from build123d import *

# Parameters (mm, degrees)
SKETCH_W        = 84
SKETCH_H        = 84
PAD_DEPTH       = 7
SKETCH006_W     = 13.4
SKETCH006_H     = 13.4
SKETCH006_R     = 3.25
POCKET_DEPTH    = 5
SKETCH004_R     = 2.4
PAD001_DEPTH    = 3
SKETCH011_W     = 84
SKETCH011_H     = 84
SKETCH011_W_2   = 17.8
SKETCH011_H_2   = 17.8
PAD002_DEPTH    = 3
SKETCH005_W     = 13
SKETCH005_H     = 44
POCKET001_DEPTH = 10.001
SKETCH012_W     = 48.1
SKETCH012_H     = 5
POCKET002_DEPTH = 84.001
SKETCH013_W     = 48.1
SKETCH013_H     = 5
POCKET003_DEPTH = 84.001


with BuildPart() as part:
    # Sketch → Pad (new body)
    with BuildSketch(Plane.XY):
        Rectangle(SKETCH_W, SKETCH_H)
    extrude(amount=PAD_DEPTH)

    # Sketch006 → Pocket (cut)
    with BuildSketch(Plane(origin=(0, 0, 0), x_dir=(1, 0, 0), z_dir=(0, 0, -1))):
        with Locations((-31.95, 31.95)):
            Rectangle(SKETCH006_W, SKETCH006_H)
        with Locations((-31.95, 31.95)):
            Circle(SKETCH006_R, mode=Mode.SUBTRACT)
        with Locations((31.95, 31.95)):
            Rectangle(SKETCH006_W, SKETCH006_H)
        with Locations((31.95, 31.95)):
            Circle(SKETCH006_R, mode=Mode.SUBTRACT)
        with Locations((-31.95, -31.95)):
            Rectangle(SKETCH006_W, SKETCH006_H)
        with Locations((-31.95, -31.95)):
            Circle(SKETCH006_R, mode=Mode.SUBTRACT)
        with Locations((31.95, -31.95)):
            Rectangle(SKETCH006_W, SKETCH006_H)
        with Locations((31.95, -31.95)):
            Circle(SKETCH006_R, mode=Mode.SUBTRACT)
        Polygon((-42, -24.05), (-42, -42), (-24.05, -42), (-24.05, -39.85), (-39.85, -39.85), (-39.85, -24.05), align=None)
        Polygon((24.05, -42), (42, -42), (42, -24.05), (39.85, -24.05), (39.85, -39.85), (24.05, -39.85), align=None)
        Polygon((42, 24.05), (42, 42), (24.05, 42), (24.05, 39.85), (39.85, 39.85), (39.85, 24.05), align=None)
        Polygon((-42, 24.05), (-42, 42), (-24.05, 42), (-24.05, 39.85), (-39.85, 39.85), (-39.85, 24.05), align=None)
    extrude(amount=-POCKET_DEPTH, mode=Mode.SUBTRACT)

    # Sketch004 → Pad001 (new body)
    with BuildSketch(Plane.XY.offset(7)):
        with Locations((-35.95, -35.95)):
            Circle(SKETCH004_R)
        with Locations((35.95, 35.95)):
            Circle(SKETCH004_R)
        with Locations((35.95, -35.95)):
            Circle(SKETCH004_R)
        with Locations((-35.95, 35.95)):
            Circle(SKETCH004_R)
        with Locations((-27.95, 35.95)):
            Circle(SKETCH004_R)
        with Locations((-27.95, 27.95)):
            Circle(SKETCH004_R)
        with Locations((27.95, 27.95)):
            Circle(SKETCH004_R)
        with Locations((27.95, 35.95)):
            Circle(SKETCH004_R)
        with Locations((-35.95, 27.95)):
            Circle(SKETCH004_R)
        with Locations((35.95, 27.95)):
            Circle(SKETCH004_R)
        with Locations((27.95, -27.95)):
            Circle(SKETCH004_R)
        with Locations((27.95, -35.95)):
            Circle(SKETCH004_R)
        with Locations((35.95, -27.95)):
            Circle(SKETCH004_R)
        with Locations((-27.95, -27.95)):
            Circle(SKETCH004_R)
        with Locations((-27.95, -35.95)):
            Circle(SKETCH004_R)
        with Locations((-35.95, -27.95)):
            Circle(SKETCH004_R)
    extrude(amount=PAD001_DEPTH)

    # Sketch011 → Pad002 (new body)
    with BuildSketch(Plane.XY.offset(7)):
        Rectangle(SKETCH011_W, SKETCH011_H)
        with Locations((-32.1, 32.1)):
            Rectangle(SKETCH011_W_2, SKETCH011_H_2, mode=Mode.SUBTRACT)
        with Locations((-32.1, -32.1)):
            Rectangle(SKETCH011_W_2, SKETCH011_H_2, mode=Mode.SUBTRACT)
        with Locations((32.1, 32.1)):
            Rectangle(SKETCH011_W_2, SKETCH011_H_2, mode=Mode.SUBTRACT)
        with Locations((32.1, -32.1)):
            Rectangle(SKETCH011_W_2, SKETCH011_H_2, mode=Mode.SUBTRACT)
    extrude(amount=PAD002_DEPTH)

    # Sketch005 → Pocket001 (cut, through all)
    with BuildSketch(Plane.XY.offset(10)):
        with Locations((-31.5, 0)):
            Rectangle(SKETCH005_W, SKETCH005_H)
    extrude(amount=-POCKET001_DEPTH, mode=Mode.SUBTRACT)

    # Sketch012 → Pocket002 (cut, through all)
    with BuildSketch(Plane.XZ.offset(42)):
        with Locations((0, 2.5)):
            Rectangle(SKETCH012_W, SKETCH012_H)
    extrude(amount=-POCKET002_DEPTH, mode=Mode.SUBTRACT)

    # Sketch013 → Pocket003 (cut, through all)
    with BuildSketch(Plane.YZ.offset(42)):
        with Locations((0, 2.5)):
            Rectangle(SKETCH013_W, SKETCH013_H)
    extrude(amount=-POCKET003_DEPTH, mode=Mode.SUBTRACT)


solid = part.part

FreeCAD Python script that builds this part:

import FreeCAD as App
import Part
import Sketcher

V = App.Vector
Q = App.Units.Quantity

doc = App.newDocument("Part")
params = doc.addObject("Spreadsheet::Sheet", "Params")
for row, (alias, value) in enumerate([
    ("sketch1_width", "84 mm"),
    ("pad1_length", "7 mm"),
    ("sketch2_diameter", "6.5 mm"),
    ("sketch2_width", "13.4 mm"),
    ("sketch2_width2", "15.8 mm"),
    ("sketch2_width3", "17.95 mm"),
    ("pocket1_length", "5 mm"),
    ("sketch3_diameter", "4.8 mm"),
    ("pad2_length", "3 mm"),
    ("sketch4_width", "84 mm"),
    ("sketch4_width2", "17.8 mm"),
    ("pad3_length", "3 mm"),
    ("sketch5_width", "13 mm"),
    ("sketch5_height", "44 mm"),
    ("sketch6_height", "5 mm"),
    ("sketch6_width", "48.1 mm"),
    ("sketch7_height", "5 mm"),
    ("sketch7_width", "48.1 mm"),
], start=1):
    params.set(f"A{row}", alias)
    params.set(f"B{row}", "=" + value)
    params.setAlias(f"B{row}", alias)

body = doc.addObject("PartDesign::Body", "Body")

# Sketch on XY plane
sketch1 = body.newObject("Sketcher::SketchObject", "Sketch")
sketch1.AttachmentSupport = (doc.getObject("XY_Plane"), [""])
sketch1.MapMode = "FlatFace"
sketch1.addGeometry(Part.LineSegment(V(-42, 42, 0), V(-42, -42, 0)), False)
sketch1.addGeometry(Part.LineSegment(V(-42, -42, 0), V(42, -42, 0)), False)
sketch1.addGeometry(Part.LineSegment(V(42, -42, 0), V(42, 42, 0)), False)
sketch1.addGeometry(Part.LineSegment(V(42, 42, 0), V(-42, 42, 0)), False)
sketch1.addConstraint(Sketcher.Constraint("Coincident", 0, 2, 1, 1))
sketch1.addConstraint(Sketcher.Constraint("Coincident", 1, 2, 2, 1))
sketch1.addConstraint(Sketcher.Constraint("Coincident", 2, 2, 3, 1))
sketch1.addConstraint(Sketcher.Constraint("Coincident", 3, 2, 0, 1))
sketch1.addConstraint(Sketcher.Constraint("Vertical", 0))
sketch1.addConstraint(Sketcher.Constraint("Horizontal", 1))
sketch1.addConstraint(Sketcher.Constraint("Vertical", 2))
sketch1.addConstraint(Sketcher.Constraint("Horizontal", 3))
sketch1.addConstraint(Sketcher.Constraint("Symmetric", 0, 2, 2, 2, -1, 1))
sketch1.addConstraint(Sketcher.Constraint("Equal", 3, 0))
sketch1.addConstraint(Sketcher.Constraint("DistanceX", 1, 1, 1, 2, Q("84 mm")))
sketch1.setExpression("Constraints[10]", "Params.sketch1_width")
pad1 = body.newObject("PartDesign::Pad", "Pad")
pad1.Profile = sketch1
pad1.setExpression("Length", "Params.pad1_length")

# Sketch on XY plane
sketch2 = body.newObject("Sketcher::SketchObject", "Sketch001")
sketch2.AttachmentSupport = (doc.getObject("XY_Plane"), [""])
sketch2.MapMode = "FlatFace"
sketch2.addGeometry(Part.LineSegment(V(-38.6, -38.6, 0), V(-38.6, -25.2, 0)), False)
sketch2.addGeometry(Part.LineSegment(V(-38.6, -25.2, 0), V(-25.2, -25.2, 0)), False)
sketch2.addGeometry(Part.LineSegment(V(-25.2, -25.2, 0), V(-25.2, -38.6, 0)), False)
sketch2.addGeometry(Part.LineSegment(V(-25.2, -38.6, 0), V(-38.6, -38.6, 0)), False)
sketch2.addGeometry(Part.Circle(V(-31.9, -31.9, 0), V(0, 0, 1), 3.2), False)
sketch2.addGeometry(Part.LineSegment(V(25.2, -38.6, 0), V(25.2, -25.2, 0)), False)
sketch2.addGeometry(Part.LineSegment(V(25.2, -25.2, 0), V(38.6, -25.2, 0)), False)
sketch2.addGeometry(Part.LineSegment(V(38.6, -25.2, 0), V(38.6, -38.6, 0)), False)
sketch2.addGeometry(Part.LineSegment(V(38.6, -38.6, 0), V(25.2, -38.6, 0)), False)
sketch2.addGeometry(Part.Circle(V(31.9, -31.9, 0), V(0, 0, 1), 3.2), False)
sketch2.addGeometry(Part.LineSegment(V(-38.6, 25.2, 0), V(-38.6, 38.6, 0)), False)
sketch2.addGeometry(Part.LineSegment(V(-38.6, 38.6, 0), V(-25.2, 38.6, 0)), False)
sketch2.addGeometry(Part.LineSegment(V(-25.2, 38.6, 0), V(-25.2, 25.2, 0)), False)
sketch2.addGeometry(Part.LineSegment(V(-25.2, 25.2, 0), V(-38.6, 25.2, 0)), False)
sketch2.addGeometry(Part.Circle(V(-31.9, 31.9, 0), V(0, 0, 1), 3.2), False)
sketch2.addGeometry(Part.LineSegment(V(25.2, 25.2, 0), V(25.2, 38.6, 0)), False)
sketch2.addGeometry(Part.LineSegment(V(25.2, 38.6, 0), V(38.6, 38.6, 0)), False)
sketch2.addGeometry(Part.LineSegment(V(38.6, 38.6, 0), V(38.6, 25.2, 0)), False)
sketch2.addGeometry(Part.LineSegment(V(38.6, 25.2, 0), V(25.2, 25.2, 0)), False)
sketch2.addGeometry(Part.Circle(V(31.9, 31.9, 0), V(0, 0, 1), 3.2), False)
sketch2.addGeometry(Part.LineSegment(V(-42, 24.1, 0), V(-42, 42, 0)), False)
sketch2.addGeometry(Part.LineSegment(V(-42, 42, 0), V(-24.1, 42, 0)), False)
sketch2.addGeometry(Part.LineSegment(V(-24.1, 42, 0), V(-24.1, 39.9, 0)), False)
sketch2.addGeometry(Part.LineSegment(V(-24.1, 39.9, 0), V(-39.9, 39.9, 0)), False)
sketch2.addGeometry(Part.LineSegment(V(-39.9, 39.9, 0), V(-39.9, 24.1, 0)), False)
sketch2.addGeometry(Part.LineSegment(V(-39.9, 24.1, 0), V(-42, 24.1, 0)), False)
sketch2.addGeometry(Part.LineSegment(V(24.1, 42, 0), V(42, 42, 0)), False)
sketch2.addGeometry(Part.LineSegment(V(42, 42, 0), V(42, 24.1, 0)), False)
sketch2.addGeometry(Part.LineSegment(V(42, 24.1, 0), V(39.9, 24.1, 0)), False)
sketch2.addGeometry(Part.LineSegment(V(39.9, 24.1, 0), V(39.9, 39.9, 0)), False)
sketch2.addGeometry(Part.LineSegment(V(39.9, 39.9, 0), V(24.1, 39.9, 0)), False)
sketch2.addGeometry(Part.LineSegment(V(24.1, 39.9, 0), V(24.1, 42, 0)), False)
sketch2.addGeometry(Part.LineSegment(V(42, -24.1, 0), V(42, -42, 0)), False)
sketch2.addGeometry(Part.LineSegment(V(42, -42, 0), V(24.1, -42, 0)), False)
sketch2.addGeometry(Part.LineSegment(V(24.1, -42, 0), V(24.1, -39.9, 0)), False)
sketch2.addGeometry(Part.LineSegment(V(24.1, -39.9, 0), V(39.9, -39.9, 0)), False)
sketch2.addGeometry(Part.LineSegment(V(39.9, -39.9, 0), V(39.9, -24.1, 0)), False)
sketch2.addGeometry(Part.LineSegment(V(39.9, -24.1, 0), V(42, -24.1, 0)), False)
sketch2.addGeometry(Part.LineSegment(V(-42, -42, 0), V(-42, -24.1, 0)), False)
sketch2.addGeometry(Part.LineSegment(V(-42, -24.1, 0), V(-39.9, -24.1, 0)), False)
sketch2.addGeometry(Part.LineSegment(V(-39.9, -24.1, 0), V(-39.9, -39.9, 0)), False)
sketch2.addGeometry(Part.LineSegment(V(-39.9, -39.9, 0), V(-24.1, -39.9, 0)), False)
sketch2.addGeometry(Part.LineSegment(V(-24.1, -39.9, 0), V(-24.1, -42, 0)), False)
sketch2.addGeometry(Part.LineSegment(V(-24.1, -42, 0), V(-42, -42, 0)), False)
sketch2.addConstraint(Sketcher.Constraint("Coincident", 0, 2, 1, 1))
sketch2.addConstraint(Sketcher.Constraint("Coincident", 1, 2, 2, 1))
sketch2.addConstraint(Sketcher.Constraint("Coincident", 2, 2, 3, 1))
sketch2.addConstraint(Sketcher.Constraint("Coincident", 3, 2, 0, 1))
sketch2.addConstraint(Sketcher.Constraint("Coincident", 5, 2, 6, 1))
sketch2.addConstraint(Sketcher.Constraint("Coincident", 6, 2, 7, 1))
sketch2.addConstraint(Sketcher.Constraint("Coincident", 7, 2, 8, 1))
sketch2.addConstraint(Sketcher.Constraint("Coincident", 8, 2, 5, 1))
sketch2.addConstraint(Sketcher.Constraint("Coincident", 10, 2, 11, 1))
sketch2.addConstraint(Sketcher.Constraint("Coincident", 11, 2, 12, 1))
sketch2.addConstraint(Sketcher.Constraint("Coincident", 12, 2, 13, 1))
sketch2.addConstraint(Sketcher.Constraint("Coincident", 13, 2, 10, 1))
sketch2.addConstraint(Sketcher.Constraint("Coincident", 15, 2, 16, 1))
sketch2.addConstraint(Sketcher.Constraint("Coincident", 16, 2, 17, 1))
sketch2.addConstraint(Sketcher.Constraint("Coincident", 17, 2, 18, 1))
sketch2.addConstraint(Sketcher.Constraint("Coincident", 18, 2, 15, 1))
sketch2.addConstraint(Sketcher.Constraint("Coincident", 20, 2, 21, 1))
sketch2.addConstraint(Sketcher.Constraint("Coincident", 21, 2, 22, 1))
sketch2.addConstraint(Sketcher.Constraint("Coincident", 22, 2, 23, 1))
sketch2.addConstraint(Sketcher.Constraint("Coincident", 23, 2, 24, 1))
sketch2.addConstraint(Sketcher.Constraint("Coincident", 24, 2, 25, 1))
sketch2.addConstraint(Sketcher.Constraint("Coincident", 25, 2, 20, 1))
sketch2.addConstraint(Sketcher.Constraint("Coincident", 26, 2, 27, 1))
sketch2.addConstraint(Sketcher.Constraint("Coincident", 27, 2, 28, 1))
sketch2.addConstraint(Sketcher.Constraint("Coincident", 28, 2, 29, 1))
sketch2.addConstraint(Sketcher.Constraint("Coincident", 29, 2, 30, 1))
sketch2.addConstraint(Sketcher.Constraint("Coincident", 30, 2, 31, 1))
sketch2.addConstraint(Sketcher.Constraint("Coincident", 31, 2, 26, 1))
sketch2.addConstraint(Sketcher.Constraint("Coincident", 32, 2, 33, 1))
sketch2.addConstraint(Sketcher.Constraint("Coincident", 33, 2, 34, 1))
sketch2.addConstraint(Sketcher.Constraint("Coincident", 34, 2, 35, 1))
sketch2.addConstraint(Sketcher.Constraint("Coincident", 35, 2, 36, 1))
sketch2.addConstraint(Sketcher.Constraint("Coincident", 36, 2, 37, 1))
sketch2.addConstraint(Sketcher.Constraint("Coincident", 37, 2, 32, 1))
sketch2.addConstraint(Sketcher.Constraint("Coincident", 38, 2, 39, 1))
sketch2.addConstraint(Sketcher.Constraint("Coincident", 39, 2, 40, 1))
sketch2.addConstraint(Sketcher.Constraint("Coincident", 40, 2, 41, 1))
sketch2.addConstraint(Sketcher.Constraint("Coincident", 41, 2, 42, 1))
sketch2.addConstraint(Sketcher.Constraint("Coincident", 42, 2, 43, 1))
sketch2.addConstraint(Sketcher.Constraint("Coincident", 43, 2, 38, 1))
sketch2.addConstraint(Sketcher.Constraint("Vertical", 0))
sketch2.addConstraint(Sketcher.Constraint("Horizontal", 1))
sketch2.addConstraint(Sketcher.Constraint("Vertical", 2))
sketch2.addConstraint(Sketcher.Constraint("Horizontal", 3))
sketch2.addConstraint(Sketcher.Constraint("Vertical", 5))
sketch2.addConstraint(Sketcher.Constraint("Horizontal", 6))
sketch2.addConstraint(Sketcher.Constraint("Vertical", 7))
sketch2.addConstraint(Sketcher.Constraint("Horizontal", 8))
sketch2.addConstraint(Sketcher.Constraint("Vertical", 10))
sketch2.addConstraint(Sketcher.Constraint("Horizontal", 11))
sketch2.addConstraint(Sketcher.Constraint("Vertical", 12))
sketch2.addConstraint(Sketcher.Constraint("Horizontal", 13))
sketch2.addConstraint(Sketcher.Constraint("Vertical", 15))
sketch2.addConstraint(Sketcher.Constraint("Horizontal", 16))
sketch2.addConstraint(Sketcher.Constraint("Vertical", 17))
sketch2.addConstraint(Sketcher.Constraint("Horizontal", 18))
sketch2.addConstraint(Sketcher.Constraint("Vertical", 20))
sketch2.addConstraint(Sketcher.Constraint("Horizontal", 21))
sketch2.addConstraint(Sketcher.Constraint("Vertical", 22))
sketch2.addConstraint(Sketcher.Constraint("Horizontal", 23))
sketch2.addConstraint(Sketcher.Constraint("Vertical", 24))
sketch2.addConstraint(Sketcher.Constraint("Horizontal", 25))
sketch2.addConstraint(Sketcher.Constraint("Horizontal", 26))
sketch2.addConstraint(Sketcher.Constraint("Vertical", 27))
sketch2.addConstraint(Sketcher.Constraint("Horizontal", 28))
sketch2.addConstraint(Sketcher.Constraint("Vertical", 29))
sketch2.addConstraint(Sketcher.Constraint("Horizontal", 30))
sketch2.addConstraint(Sketcher.Constraint("Vertical", 31))
sketch2.addConstraint(Sketcher.Constraint("Vertical", 32))
sketch2.addConstraint(Sketcher.Constraint("Horizontal", 33))
sketch2.addConstraint(Sketcher.Constraint("Vertical", 34))
sketch2.addConstraint(Sketcher.Constraint("Horizontal", 35))
sketch2.addConstraint(Sketcher.Constraint("Vertical", 36))
sketch2.addConstraint(Sketcher.Constraint("Horizontal", 37))
sketch2.addConstraint(Sketcher.Constraint("Vertical", 38))
sketch2.addConstraint(Sketcher.Constraint("Horizontal", 39))
sketch2.addConstraint(Sketcher.Constraint("Vertical", 40))
sketch2.addConstraint(Sketcher.Constraint("Horizontal", 41))
sketch2.addConstraint(Sketcher.Constraint("Vertical", 42))
sketch2.addConstraint(Sketcher.Constraint("Horizontal", 43))
sketch2.addConstraint(Sketcher.Constraint("Equal", 4, 9))
sketch2.addConstraint(Sketcher.Constraint("Equal", 9, 14))
sketch2.addConstraint(Sketcher.Constraint("Equal", 14, 19))
sketch2.addConstraint(Sketcher.Constraint("Symmetric", 9, 3, 14, 3, -1, 1))
sketch2.addConstraint(Sketcher.Constraint("Symmetric", 4, 3, 19, 3, -1, 1))
sketch2.addConstraint(Sketcher.Constraint("Symmetric", 7, 2, 10, 2, -1, 1))
sketch2.addConstraint(Sketcher.Constraint("Symmetric", 5, 2, 12, 2, -1, 1))
sketch2.addConstraint(Sketcher.Constraint("Symmetric", 2, 2, 15, 2, -1, 1))
sketch2.addConstraint(Sketcher.Constraint("Symmetric", 0, 2, 17, 2, -1, 1))
sketch2.addConstraint(Sketcher.Constraint("Symmetric", 20, 2, 32, 2, -1, 1))
sketch2.addConstraint(Sketcher.Constraint("Symmetric", 22, 2, 34, 2, -1, 1))
sketch2.addConstraint(Sketcher.Constraint("Symmetric", 24, 2, 36, 2, -1, 1))
sketch2.addConstraint(Sketcher.Constraint("Symmetric", 27, 2, 38, 2, -1, 1))
sketch2.addConstraint(Sketcher.Constraint("Symmetric", 29, 2, 40, 2, -1, 1))
sketch2.addConstraint(Sketcher.Constraint("Symmetric", 31, 2, 42, 2, -1, 1))
sketch2.addConstraint(Sketcher.Constraint("Symmetric", 4, 3, 9, 3, -2))
sketch2.addConstraint(Sketcher.Constraint("Symmetric", 1, 2, 5, 2, -2))
sketch2.addConstraint(Sketcher.Constraint("Symmetric", 3, 2, 7, 2, -2))
sketch2.addConstraint(Sketcher.Constraint("Symmetric", 20, 2, 26, 2, -2))
sketch2.addConstraint(Sketcher.Constraint("Symmetric", 24, 2, 28, 2, -2))
sketch2.addConstraint(Sketcher.Constraint("Symmetric", 22, 2, 30, 2, -2))
sketch2.addConstraint(Sketcher.Constraint("Equal", 18, 0))
sketch2.addConstraint(Sketcher.Constraint("Equal", 43, 20))
sketch2.addConstraint(Sketcher.Constraint("Equal", 39, 22))
sketch2.addConstraint(Sketcher.Constraint("Diameter", 4, Q("6.5 mm")))
sketch2.addConstraint(Sketcher.Constraint("DistanceX", 1, 1, 1, 2, Q("13.4 mm")))
sketch2.addConstraint(Sketcher.Constraint("DistanceX", 23, 2, 23, 1, Q("15.8 mm")))
sketch2.addConstraint(Sketcher.Constraint("DistanceX", 20, 2, -1, 1, Q("42 mm")))
sketch2.addConstraint(Sketcher.Constraint("DistanceY", -1, 1, 20, 2, Q("42 mm")))
sketch2.addConstraint(Sketcher.Constraint("DistanceX", 21, 1, 21, 2, Q("17.95 mm")))
sketch2.addConstraint(Sketcher.Constraint("DistanceX", 4, 3, 9, 3, Q("63.9 mm")))
sketch2.addConstraint(Sketcher.Constraint("DistanceY", 4, 3, 14, 3, Q("63.9 mm")))
sketch2.addConstraint(Sketcher.Constraint("DistanceX", 0, 2, 4, 3, Q("6.7 mm")))
sketch2.addConstraint(Sketcher.Constraint("DistanceY", 4, 3, 0, 2, Q("6.7 mm")))
sketch2.setExpression("Constraints[104]", "Params.sketch2_diameter")
sketch2.setExpression("Constraints[105]", "Params.sketch2_width")
sketch2.setExpression("Constraints[106]", "Params.sketch2_width2")
sketch2.setExpression("Constraints[109]", "Params.sketch2_width3")
pocket1 = body.newObject("PartDesign::Pocket", "Pocket")
pocket1.Profile = sketch2
pocket1.setExpression("Length", "Params.pocket1_length")
pocket1.Reversed = True

# Sketch on XY plane
sketch3 = body.newObject("Sketcher::SketchObject", "Sketch002")
sketch3.AttachmentSupport = (doc.getObject("XY_Plane"), [""])
sketch3.MapMode = "FlatFace"
sketch3.AttachmentOffset = App.Placement(V(0, 0, 7), App.Rotation())
sketch3.addGeometry(Part.Circle(V(-36, -36, 0), V(0, 0, 1), 2.4), False)
sketch3.addGeometry(Part.Circle(V(36, 36, 0), V(0, 0, 1), 2.4), False)
sketch3.addGeometry(Part.Circle(V(36, -36, 0), V(0, 0, 1), 2.4), False)
sketch3.addGeometry(Part.Circle(V(-36, 36, 0), V(0, 0, 1), 2.4), False)
sketch3.addGeometry(Part.Circle(V(-27.9, 36, 0), V(0, 0, 1), 2.4), False)
sketch3.addGeometry(Part.Circle(V(-27.9, 27.9, 0), V(0, 0, 1), 2.4), False)
sketch3.addGeometry(Part.Circle(V(27.9, 27.9, 0), V(0, 0, 1), 2.4), False)
sketch3.addGeometry(Part.Circle(V(27.9, 36, 0), V(0, 0, 1), 2.4), False)
sketch3.addGeometry(Part.Circle(V(-36, 27.9, 0), V(0, 0, 1), 2.4), False)
sketch3.addGeometry(Part.Circle(V(36, 27.9, 0), V(0, 0, 1), 2.4), False)
sketch3.addGeometry(Part.Circle(V(27.9, -27.9, 0), V(0, 0, 1), 2.4), False)
sketch3.addGeometry(Part.Circle(V(27.9, -36, 0), V(0, 0, 1), 2.4), False)
sketch3.addGeometry(Part.Circle(V(36, -27.9, 0), V(0, 0, 1), 2.4), False)
sketch3.addGeometry(Part.Circle(V(-27.9, -27.9, 0), V(0, 0, 1), 2.4), False)
sketch3.addGeometry(Part.Circle(V(-27.9, -36, 0), V(0, 0, 1), 2.4), False)
sketch3.addGeometry(Part.Circle(V(-36, -27.9, 0), V(0, 0, 1), 2.4), False)
sketch3.addConstraint(Sketcher.Constraint("Equal", 0, 1))
sketch3.addConstraint(Sketcher.Constraint("Equal", 1, 2))
sketch3.addConstraint(Sketcher.Constraint("Equal", 2, 3))
sketch3.addConstraint(Sketcher.Constraint("Equal", 3, 4))
sketch3.addConstraint(Sketcher.Constraint("Equal", 4, 5))
sketch3.addConstraint(Sketcher.Constraint("Equal", 5, 6))
sketch3.addConstraint(Sketcher.Constraint("Equal", 6, 7))
sketch3.addConstraint(Sketcher.Constraint("Equal", 7, 8))
sketch3.addConstraint(Sketcher.Constraint("Equal", 8, 9))
sketch3.addConstraint(Sketcher.Constraint("Equal", 9, 10))
sketch3.addConstraint(Sketcher.Constraint("Equal", 10, 11))
sketch3.addConstraint(Sketcher.Constraint("Equal", 11, 12))
sketch3.addConstraint(Sketcher.Constraint("Equal", 12, 13))
sketch3.addConstraint(Sketcher.Constraint("Equal", 13, 14))
sketch3.addConstraint(Sketcher.Constraint("Equal", 14, 15))
sketch3.addConstraint(Sketcher.Constraint("Symmetric", 0, 3, 1, 3, -1, 1))
sketch3.addConstraint(Sketcher.Constraint("Symmetric", 2, 3, 3, 3, -1, 1))
sketch3.addConstraint(Sketcher.Constraint("Symmetric", 5, 3, 10, 3, -1, 1))
sketch3.addConstraint(Sketcher.Constraint("Symmetric", 4, 3, 11, 3, -1, 1))
sketch3.addConstraint(Sketcher.Constraint("Symmetric", 8, 3, 12, 3, -1, 1))
sketch3.addConstraint(Sketcher.Constraint("Symmetric", 6, 3, 13, 3, -1, 1))
sketch3.addConstraint(Sketcher.Constraint("Symmetric", 7, 3, 14, 3, -1, 1))
sketch3.addConstraint(Sketcher.Constraint("Symmetric", 9, 3, 15, 3, -1, 1))
sketch3.addConstraint(Sketcher.Constraint("Symmetric", 0, 3, 2, 3, -2))
sketch3.addConstraint(Sketcher.Constraint("Symmetric", 5, 3, 6, 3, -2))
sketch3.addConstraint(Sketcher.Constraint("Symmetric", 4, 3, 7, 3, -2))
sketch3.addConstraint(Sketcher.Constraint("Symmetric", 8, 3, 9, 3, -2))
sketch3.addConstraint(Sketcher.Constraint("Horizontal", 3, 3, 4, 3))
sketch3.addConstraint(Sketcher.Constraint("Horizontal", 6, 3, 8, 3))
sketch3.addConstraint(Sketcher.Constraint("Vertical", 4, 3, 5, 3))
sketch3.addConstraint(Sketcher.Constraint("Vertical", 3, 3, 8, 3))
sketch3.addConstraint(Sketcher.Constraint("Diameter", 0, Q("4.8 mm")))
sketch3.addConstraint(Sketcher.Constraint("DistanceX", 3, 3, 4, 3, Q("8 mm")))
sketch3.addConstraint(Sketcher.Constraint("DistanceY", 5, 3, 4, 3, Q("8 mm")))
sketch3.addConstraint(Sketcher.Constraint("DistanceX", 0, 3, 1, 3, Q("71.9 mm")))
sketch3.addConstraint(Sketcher.Constraint("DistanceY", 0, 3, 1, 3, Q("71.9 mm")))
sketch3.setExpression("Constraints[31]", "Params.sketch3_diameter")
pad2 = body.newObject("PartDesign::Pad", "Pad001")
pad2.Profile = sketch3
pad2.setExpression("Length", "Params.pad2_length")

# Sketch on XY plane
sketch4 = body.newObject("Sketcher::SketchObject", "Sketch003")
sketch4.AttachmentSupport = (doc.getObject("XY_Plane"), [""])
sketch4.MapMode = "FlatFace"
sketch4.AttachmentOffset = App.Placement(V(0, 0, 7), App.Rotation())
sketch4.addGeometry(Part.LineSegment(V(-42, 42, 0), V(-42, -42, 0)), False)
sketch4.addGeometry(Part.LineSegment(V(-42, -42, 0), V(42, -42, 0)), False)
sketch4.addGeometry(Part.LineSegment(V(42, -42, 0), V(42, 42, 0)), False)
sketch4.addGeometry(Part.LineSegment(V(42, 42, 0), V(-42, 42, 0)), False)
sketch4.addGeometry(Part.LineSegment(V(-23, -41, 0), V(-41, -41, 0)), False)
sketch4.addGeometry(Part.LineSegment(V(-41, -41, 0), V(-41, -23, 0)), False)
sketch4.addGeometry(Part.LineSegment(V(-41, -23, 0), V(-23, -23, 0)), False)
sketch4.addGeometry(Part.LineSegment(V(-23, -23, 0), V(-23, -41, 0)), False)
sketch4.addGeometry(Part.LineSegment(V(41, -41, 0), V(23, -41, 0)), False)
sketch4.addGeometry(Part.LineSegment(V(23, -41, 0), V(23, -23, 0)), False)
sketch4.addGeometry(Part.LineSegment(V(23, -23, 0), V(41, -23, 0)), False)
sketch4.addGeometry(Part.LineSegment(V(41, -23, 0), V(41, -41, 0)), False)
sketch4.addGeometry(Part.LineSegment(V(-23, 23, 0), V(-41, 23, 0)), False)
sketch4.addGeometry(Part.LineSegment(V(-41, 23, 0), V(-41, 41, 0)), False)
sketch4.addGeometry(Part.LineSegment(V(-41, 41, 0), V(-23, 41, 0)), False)
sketch4.addGeometry(Part.LineSegment(V(-23, 41, 0), V(-23, 23, 0)), False)
sketch4.addGeometry(Part.LineSegment(V(41, 23, 0), V(23, 23, 0)), False)
sketch4.addGeometry(Part.LineSegment(V(23, 23, 0), V(23, 41, 0)), False)
sketch4.addGeometry(Part.LineSegment(V(23, 41, 0), V(41, 41, 0)), False)
sketch4.addGeometry(Part.LineSegment(V(41, 41, 0), V(41, 23, 0)), False)
sketch4.addConstraint(Sketcher.Constraint("Coincident", 0, 2, 1, 1))
sketch4.addConstraint(Sketcher.Constraint("Coincident", 1, 2, 2, 1))
sketch4.addConstraint(Sketcher.Constraint("Coincident", 2, 2, 3, 1))
sketch4.addConstraint(Sketcher.Constraint("Coincident", 3, 2, 0, 1))
sketch4.addConstraint(Sketcher.Constraint("Coincident", 4, 2, 5, 1))
sketch4.addConstraint(Sketcher.Constraint("Coincident", 5, 2, 6, 1))
sketch4.addConstraint(Sketcher.Constraint("Coincident", 6, 2, 7, 1))
sketch4.addConstraint(Sketcher.Constraint("Coincident", 7, 2, 4, 1))
sketch4.addConstraint(Sketcher.Constraint("Coincident", 8, 2, 9, 1))
sketch4.addConstraint(Sketcher.Constraint("Coincident", 9, 2, 10, 1))
sketch4.addConstraint(Sketcher.Constraint("Coincident", 10, 2, 11, 1))
sketch4.addConstraint(Sketcher.Constraint("Coincident", 11, 2, 8, 1))
sketch4.addConstraint(Sketcher.Constraint("Coincident", 12, 2, 13, 1))
sketch4.addConstraint(Sketcher.Constraint("Coincident", 13, 2, 14, 1))
sketch4.addConstraint(Sketcher.Constraint("Coincident", 14, 2, 15, 1))
sketch4.addConstraint(Sketcher.Constraint("Coincident", 15, 2, 12, 1))
sketch4.addConstraint(Sketcher.Constraint("Coincident", 16, 2, 17, 1))
sketch4.addConstraint(Sketcher.Constraint("Coincident", 17, 2, 18, 1))
sketch4.addConstraint(Sketcher.Constraint("Coincident", 18, 2, 19, 1))
sketch4.addConstraint(Sketcher.Constraint("Coincident", 19, 2, 16, 1))
sketch4.addConstraint(Sketcher.Constraint("Vertical", 0))
sketch4.addConstraint(Sketcher.Constraint("Horizontal", 1))
sketch4.addConstraint(Sketcher.Constraint("Vertical", 2))
sketch4.addConstraint(Sketcher.Constraint("Horizontal", 3))
sketch4.addConstraint(Sketcher.Constraint("Horizontal", 4))
sketch4.addConstraint(Sketcher.Constraint("Vertical", 5))
sketch4.addConstraint(Sketcher.Constraint("Horizontal", 6))
sketch4.addConstraint(Sketcher.Constraint("Vertical", 7))
sketch4.addConstraint(Sketcher.Constraint("Horizontal", 8))
sketch4.addConstraint(Sketcher.Constraint("Vertical", 9))
sketch4.addConstraint(Sketcher.Constraint("Horizontal", 10))
sketch4.addConstraint(Sketcher.Constraint("Vertical", 11))
sketch4.addConstraint(Sketcher.Constraint("Horizontal", 12))
sketch4.addConstraint(Sketcher.Constraint("Vertical", 13))
sketch4.addConstraint(Sketcher.Constraint("Horizontal", 14))
sketch4.addConstraint(Sketcher.Constraint("Vertical", 15))
sketch4.addConstraint(Sketcher.Constraint("Horizontal", 16))
sketch4.addConstraint(Sketcher.Constraint("Vertical", 17))
sketch4.addConstraint(Sketcher.Constraint("Horizontal", 18))
sketch4.addConstraint(Sketcher.Constraint("Vertical", 19))
sketch4.addConstraint(Sketcher.Constraint("Symmetric", 0, 2, 2, 2, -1, 1))
sketch4.addConstraint(Sketcher.Constraint("Symmetric", 10, 2, 12, 2, -1, 1))
sketch4.addConstraint(Sketcher.Constraint("Symmetric", 8, 2, 14, 2, -1, 1))
sketch4.addConstraint(Sketcher.Constraint("Symmetric", 6, 2, 16, 2, -1, 1))
sketch4.addConstraint(Sketcher.Constraint("Symmetric", 4, 2, 18, 2, -1, 1))
sketch4.addConstraint(Sketcher.Constraint("Symmetric", 7, 2, 8, 2, -2))
sketch4.addConstraint(Sketcher.Constraint("Symmetric", 5, 2, 10, 2, -2))
sketch4.addConstraint(Sketcher.Constraint("Equal", 3, 0))
sketch4.addConstraint(Sketcher.Constraint("Equal", 18, 5))
sketch4.addConstraint(Sketcher.Constraint("DistanceX", 1, 1, 1, 2, Q("84 mm")))
sketch4.addConstraint(Sketcher.Constraint("DistanceX", 4, 2, 4, 1, Q("17.8 mm")))
sketch4.addConstraint(Sketcher.Constraint("DistanceX", 4, 2, -1, 1, Q("41 mm")))
sketch4.addConstraint(Sketcher.Constraint("DistanceY", 4, 2, -1, 1, Q("41 mm")))
sketch4.setExpression("Constraints[49]", "Params.sketch4_width")
sketch4.setExpression("Constraints[50]", "Params.sketch4_width2")
pad3 = body.newObject("PartDesign::Pad", "Pad002")
pad3.Profile = sketch4
pad3.setExpression("Length", "Params.pad3_length")

# Sketch on XY plane
sketch5 = body.newObject("Sketcher::SketchObject", "Sketch004")
sketch5.AttachmentSupport = (doc.getObject("XY_Plane"), [""])
sketch5.MapMode = "FlatFace"
sketch5.AttachmentOffset = App.Placement(V(0, 0, 10), App.Rotation())
sketch5.addGeometry(Part.LineSegment(V(-38, 22, 0), V(-38, -22, 0)), False)
sketch5.addGeometry(Part.LineSegment(V(-38, -22, 0), V(-25, -22, 0)), False)
sketch5.addGeometry(Part.LineSegment(V(-25, -22, 0), V(-25, 22, 0)), False)
sketch5.addGeometry(Part.LineSegment(V(-25, 22, 0), V(-38, 22, 0)), False)
sketch5.addConstraint(Sketcher.Constraint("Coincident", 0, 2, 1, 1))
sketch5.addConstraint(Sketcher.Constraint("Coincident", 1, 2, 2, 1))
sketch5.addConstraint(Sketcher.Constraint("Coincident", 2, 2, 3, 1))
sketch5.addConstraint(Sketcher.Constraint("Coincident", 3, 2, 0, 1))
sketch5.addConstraint(Sketcher.Constraint("Vertical", 0))
sketch5.addConstraint(Sketcher.Constraint("Horizontal", 1))
sketch5.addConstraint(Sketcher.Constraint("Vertical", 2))
sketch5.addConstraint(Sketcher.Constraint("Horizontal", 3))
sketch5.addConstraint(Sketcher.Constraint("DistanceX", 1, 1, 1, 2, Q("13 mm")))
sketch5.addConstraint(Sketcher.Constraint("DistanceY", 0, 2, 0, 1, Q("44 mm")))
sketch5.addConstraint(Sketcher.Constraint("DistanceX", 0, 2, -1, 1, Q("38 mm")))
sketch5.addConstraint(Sketcher.Constraint("DistanceY", 0, 2, -1, 1, Q("22 mm")))
sketch5.setExpression("Constraints[8]", "Params.sketch5_width")
sketch5.setExpression("Constraints[9]", "Params.sketch5_height")
pocket2 = body.newObject("PartDesign::Pocket", "Pocket001")
pocket2.Profile = sketch5
pocket2.Type = "ThroughAll"

# Sketch on XZ plane
sketch6 = body.newObject("Sketcher::SketchObject", "Sketch005")
sketch6.AttachmentSupport = (doc.getObject("XZ_Plane"), [""])
sketch6.MapMode = "FlatFace"
sketch6.AttachmentOffset = App.Placement(V(0, 0, 42), App.Rotation())
sketch6.addGeometry(Part.LineSegment(V(-24, 5, 0), V(-24, 0, 0)), False)
sketch6.addGeometry(Part.LineSegment(V(-24, 0, 0), V(24, 0, 0)), False)
sketch6.addGeometry(Part.LineSegment(V(24, 0, 0), V(24, 5, 0)), False)
sketch6.addGeometry(Part.LineSegment(V(24, 5, 0), V(-24, 5, 0)), False)
sketch6.addConstraint(Sketcher.Constraint("Coincident", 0, 2, 1, 1))
sketch6.addConstraint(Sketcher.Constraint("Coincident", 1, 2, 2, 1))
sketch6.addConstraint(Sketcher.Constraint("Coincident", 2, 2, 3, 1))
sketch6.addConstraint(Sketcher.Constraint("Coincident", 3, 2, 0, 1))
sketch6.addConstraint(Sketcher.Constraint("Vertical", 0))
sketch6.addConstraint(Sketcher.Constraint("Horizontal", 1))
sketch6.addConstraint(Sketcher.Constraint("Vertical", 2))
sketch6.addConstraint(Sketcher.Constraint("Horizontal", 3))
sketch6.addConstraint(Sketcher.Constraint("Symmetric", 0, 2, 1, 2, -1, 1))
sketch6.addConstraint(Sketcher.Constraint("DistanceY", 0, 2, 0, 1, Q("5 mm")))
sketch6.addConstraint(Sketcher.Constraint("DistanceX", 1, 1, 1, 2, Q("48.1 mm")))
sketch6.setExpression("Constraints[9]", "Params.sketch6_height")
sketch6.setExpression("Constraints[10]", "Params.sketch6_width")
pocket3 = body.newObject("PartDesign::Pocket", "Pocket002")
pocket3.Profile = sketch6
pocket3.Type = "ThroughAll"

# Sketch on YZ plane
sketch7 = body.newObject("Sketcher::SketchObject", "Sketch006")
sketch7.AttachmentSupport = (doc.getObject("YZ_Plane"), [""])
sketch7.MapMode = "FlatFace"
sketch7.AttachmentOffset = App.Placement(V(0, 0, 42), App.Rotation())
sketch7.addGeometry(Part.LineSegment(V(-24, 5, 0), V(-24, 0, 0)), False)
sketch7.addGeometry(Part.LineSegment(V(-24, 0, 0), V(24, 0, 0)), False)
sketch7.addGeometry(Part.LineSegment(V(24, 0, 0), V(24, 5, 0)), False)
sketch7.addGeometry(Part.LineSegment(V(24, 5, 0), V(-24, 5, 0)), False)
sketch7.addConstraint(Sketcher.Constraint("Coincident", 0, 2, 1, 1))
sketch7.addConstraint(Sketcher.Constraint("Coincident", 1, 2, 2, 1))
sketch7.addConstraint(Sketcher.Constraint("Coincident", 2, 2, 3, 1))
sketch7.addConstraint(Sketcher.Constraint("Coincident", 3, 2, 0, 1))
sketch7.addConstraint(Sketcher.Constraint("Vertical", 0))
sketch7.addConstraint(Sketcher.Constraint("Horizontal", 1))
sketch7.addConstraint(Sketcher.Constraint("Vertical", 2))
sketch7.addConstraint(Sketcher.Constraint("Horizontal", 3))
sketch7.addConstraint(Sketcher.Constraint("Symmetric", 0, 2, 1, 2, -1, 1))
sketch7.addConstraint(Sketcher.Constraint("DistanceY", 0, 2, 0, 1, Q("5 mm")))
sketch7.addConstraint(Sketcher.Constraint("DistanceX", 1, 1, 1, 2, Q("48.1 mm")))
sketch7.setExpression("Constraints[9]", "Params.sketch7_height")
sketch7.setExpression("Constraints[10]", "Params.sketch7_width")
pocket4 = body.newObject("PartDesign::Pocket", "Pocket003")
pocket4.Profile = sketch7
pocket4.Type = "ThroughAll"

doc.recompute()
